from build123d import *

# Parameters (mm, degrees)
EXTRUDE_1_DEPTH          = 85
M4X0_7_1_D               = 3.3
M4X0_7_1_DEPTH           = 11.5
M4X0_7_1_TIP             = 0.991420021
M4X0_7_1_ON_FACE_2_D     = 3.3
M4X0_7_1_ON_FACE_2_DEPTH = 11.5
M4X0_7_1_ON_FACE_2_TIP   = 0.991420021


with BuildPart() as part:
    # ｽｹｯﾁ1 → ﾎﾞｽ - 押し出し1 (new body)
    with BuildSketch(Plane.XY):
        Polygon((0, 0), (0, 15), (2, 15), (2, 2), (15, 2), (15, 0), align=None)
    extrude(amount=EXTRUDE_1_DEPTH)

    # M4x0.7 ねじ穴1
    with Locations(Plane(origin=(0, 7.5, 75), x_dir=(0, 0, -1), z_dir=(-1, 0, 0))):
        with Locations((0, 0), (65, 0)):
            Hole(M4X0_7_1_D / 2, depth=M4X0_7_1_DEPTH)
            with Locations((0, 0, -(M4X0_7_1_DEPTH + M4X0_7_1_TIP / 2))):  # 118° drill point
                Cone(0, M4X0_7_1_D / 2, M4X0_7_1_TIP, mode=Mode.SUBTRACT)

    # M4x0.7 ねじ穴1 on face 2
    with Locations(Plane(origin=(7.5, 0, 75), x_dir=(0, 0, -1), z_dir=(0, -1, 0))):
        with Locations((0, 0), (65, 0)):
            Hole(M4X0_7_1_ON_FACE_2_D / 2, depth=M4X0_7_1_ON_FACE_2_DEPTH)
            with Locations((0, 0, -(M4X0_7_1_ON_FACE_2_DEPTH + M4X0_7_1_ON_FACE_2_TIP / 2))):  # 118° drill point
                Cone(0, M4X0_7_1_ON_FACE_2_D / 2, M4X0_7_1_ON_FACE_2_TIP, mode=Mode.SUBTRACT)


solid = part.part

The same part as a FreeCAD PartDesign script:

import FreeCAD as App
import Part
import Sketcher


def add_polygon(sketch, points):
    """Adds a closed chain of lines whose ends are joined by coincident constraints."""
    first, n = sketch.GeometryCount, len(points)
    for a, b in zip(points, points[1:] + points[:1]):
        sketch.addGeometry(Part.LineSegment(App.Vector(*a, 0), App.Vector(*b, 0)), False)
    for i in range(n):
        sketch.addConstraint(Sketcher.Constraint("Coincident", first + i, 2, first + (i + 1) % n, 1))

doc = App.newDocument("Part")
body = doc.addObject("PartDesign::Body", "Body")

# Sketch on XY plane
sketch1 = body.newObject("Sketcher::SketchObject", "Sketch")
sketch1.AttachmentSupport = (doc.getObject("XY_Plane"), [""])
sketch1.MapMode = "FlatFace"
add_polygon(sketch1, [(0, 15), (0, 0), (15, 0), (15, 2), (2, 2), (2, 15)])  # lines 0-5
sketch1.addConstraint(Sketcher.Constraint("Vertical", 0))
sketch1.addConstraint(Sketcher.Constraint("Horizontal", 1))
sketch1.addConstraint(Sketcher.Constraint("Vertical", 2))
sketch1.addConstraint(Sketcher.Constraint("Horizontal", 3))
sketch1.addConstraint(Sketcher.Constraint("Vertical", 4))
sketch1.addConstraint(Sketcher.Constraint("Horizontal", 5))
sketch1.addConstraint(Sketcher.Constraint("Coincident", 0, 2, -1, 1))
sketch1.addConstraint(Sketcher.Constraint("Equal", 1, 0))
sketch1.addConstraint(Sketcher.Constraint("Equal", 5, 2))
sketch1.addConstraint(Sketcher.Constraint("DistanceX", 1, 1, 1, 2, 15.0))
sketch1.addConstraint(Sketcher.Constraint("DistanceX", 3, 2, 3, 1, 13.0))
pad1 = body.newObject("PartDesign::Pad", "Pad")
pad1.Profile = sketch1
pad1.Length = 85

# Sketch on YZ plane
sketch2 = body.newObject("Sketcher::SketchObject", "Sketch001")
sketch2.AttachmentSupport = (doc.getObject("YZ_Plane"), [""])
sketch2.MapMode = "FlatFace"
sketch2.addGeometry(Part.Circle(App.Vector(7.5, 75, 0), App.Vector(0, 0, 1), 1.6), False)
sketch2.addGeometry(Part.Circle(App.Vector(7.5, 10, 0), App.Vector(0, 0, 1), 1.6), False)
sketch2.addConstraint(Sketcher.Constraint("Equal", 0, 1))
sketch2.addConstraint(Sketcher.Constraint("Vertical", 0, 3, 1, 3))
sketch2.addConstraint(Sketcher.Constraint("Diameter", 0, 3.3))
sketch2.addConstraint(Sketcher.Constraint("DistanceY", -1, 1, 0, 3, 75.0))
sketch2.addConstraint(Sketcher.Constraint("DistanceY", -1, 1, 1, 3, 10.0))
sketch2.addConstraint(Sketcher.Constraint("DistanceX", -1, 1, 0, 3, 7.5))
doc.recompute()
hole = body.newObject("PartDesign::Hole", "Hole")
hole.Profile = sketch2
hole.ThreadType = "None"
hole.Diameter = 3.3
hole.DepthType = "Dimension"
hole.Depth = 11.5
hole.DrillPoint = "Angled"
hole.DrillPointAngle = 118
hole.Reversed = True

# Sketch on XZ plane
sketch3 = body.newObject("Sketcher::SketchObject", "Sketch002")
sketch3.AttachmentSupport = (doc.getObject("XZ_Plane"), [""])
sketch3.MapMode = "FlatFace"
sketch3.addGeometry(Part.Circle(App.Vector(7.5, 75, 0), App.Vector(0, 0, 1), 1.6), False)
sketch3.addGeometry(Part.Circle(App.Vector(7.5, 10, 0), App.Vector(0, 0, 1), 1.6), False)
sketch3.addConstraint(Sketcher.Constraint("Equal", 0, 1))
sketch3.addConstraint(Sketcher.Constraint("Vertical", 0, 3, 1, 3))
sketch3.addConstraint(Sketcher.Constraint("Diameter", 0, 3.3))
sketch3.addConstraint(Sketcher.Constraint("DistanceY", -1, 1, 0, 3, 75.0))
sketch3.addConstraint(Sketcher.Constraint("DistanceY", -1, 1, 1, 3, 10.0))
sketch3.addConstraint(Sketcher.Constraint("DistanceX", -1, 1, 0, 3, 7.5))
doc.recompute()
hole2 = body.newObject("PartDesign::Hole", "Hole001")
hole2.Profile = sketch3
hole2.ThreadType = "None"
hole2.Diameter = 3.3
hole2.DepthType = "Dimension"
hole2.Depth = 11.5
hole2.DrillPoint = "Angled"
hole2.DrillPointAngle = 118

doc.recompute()
